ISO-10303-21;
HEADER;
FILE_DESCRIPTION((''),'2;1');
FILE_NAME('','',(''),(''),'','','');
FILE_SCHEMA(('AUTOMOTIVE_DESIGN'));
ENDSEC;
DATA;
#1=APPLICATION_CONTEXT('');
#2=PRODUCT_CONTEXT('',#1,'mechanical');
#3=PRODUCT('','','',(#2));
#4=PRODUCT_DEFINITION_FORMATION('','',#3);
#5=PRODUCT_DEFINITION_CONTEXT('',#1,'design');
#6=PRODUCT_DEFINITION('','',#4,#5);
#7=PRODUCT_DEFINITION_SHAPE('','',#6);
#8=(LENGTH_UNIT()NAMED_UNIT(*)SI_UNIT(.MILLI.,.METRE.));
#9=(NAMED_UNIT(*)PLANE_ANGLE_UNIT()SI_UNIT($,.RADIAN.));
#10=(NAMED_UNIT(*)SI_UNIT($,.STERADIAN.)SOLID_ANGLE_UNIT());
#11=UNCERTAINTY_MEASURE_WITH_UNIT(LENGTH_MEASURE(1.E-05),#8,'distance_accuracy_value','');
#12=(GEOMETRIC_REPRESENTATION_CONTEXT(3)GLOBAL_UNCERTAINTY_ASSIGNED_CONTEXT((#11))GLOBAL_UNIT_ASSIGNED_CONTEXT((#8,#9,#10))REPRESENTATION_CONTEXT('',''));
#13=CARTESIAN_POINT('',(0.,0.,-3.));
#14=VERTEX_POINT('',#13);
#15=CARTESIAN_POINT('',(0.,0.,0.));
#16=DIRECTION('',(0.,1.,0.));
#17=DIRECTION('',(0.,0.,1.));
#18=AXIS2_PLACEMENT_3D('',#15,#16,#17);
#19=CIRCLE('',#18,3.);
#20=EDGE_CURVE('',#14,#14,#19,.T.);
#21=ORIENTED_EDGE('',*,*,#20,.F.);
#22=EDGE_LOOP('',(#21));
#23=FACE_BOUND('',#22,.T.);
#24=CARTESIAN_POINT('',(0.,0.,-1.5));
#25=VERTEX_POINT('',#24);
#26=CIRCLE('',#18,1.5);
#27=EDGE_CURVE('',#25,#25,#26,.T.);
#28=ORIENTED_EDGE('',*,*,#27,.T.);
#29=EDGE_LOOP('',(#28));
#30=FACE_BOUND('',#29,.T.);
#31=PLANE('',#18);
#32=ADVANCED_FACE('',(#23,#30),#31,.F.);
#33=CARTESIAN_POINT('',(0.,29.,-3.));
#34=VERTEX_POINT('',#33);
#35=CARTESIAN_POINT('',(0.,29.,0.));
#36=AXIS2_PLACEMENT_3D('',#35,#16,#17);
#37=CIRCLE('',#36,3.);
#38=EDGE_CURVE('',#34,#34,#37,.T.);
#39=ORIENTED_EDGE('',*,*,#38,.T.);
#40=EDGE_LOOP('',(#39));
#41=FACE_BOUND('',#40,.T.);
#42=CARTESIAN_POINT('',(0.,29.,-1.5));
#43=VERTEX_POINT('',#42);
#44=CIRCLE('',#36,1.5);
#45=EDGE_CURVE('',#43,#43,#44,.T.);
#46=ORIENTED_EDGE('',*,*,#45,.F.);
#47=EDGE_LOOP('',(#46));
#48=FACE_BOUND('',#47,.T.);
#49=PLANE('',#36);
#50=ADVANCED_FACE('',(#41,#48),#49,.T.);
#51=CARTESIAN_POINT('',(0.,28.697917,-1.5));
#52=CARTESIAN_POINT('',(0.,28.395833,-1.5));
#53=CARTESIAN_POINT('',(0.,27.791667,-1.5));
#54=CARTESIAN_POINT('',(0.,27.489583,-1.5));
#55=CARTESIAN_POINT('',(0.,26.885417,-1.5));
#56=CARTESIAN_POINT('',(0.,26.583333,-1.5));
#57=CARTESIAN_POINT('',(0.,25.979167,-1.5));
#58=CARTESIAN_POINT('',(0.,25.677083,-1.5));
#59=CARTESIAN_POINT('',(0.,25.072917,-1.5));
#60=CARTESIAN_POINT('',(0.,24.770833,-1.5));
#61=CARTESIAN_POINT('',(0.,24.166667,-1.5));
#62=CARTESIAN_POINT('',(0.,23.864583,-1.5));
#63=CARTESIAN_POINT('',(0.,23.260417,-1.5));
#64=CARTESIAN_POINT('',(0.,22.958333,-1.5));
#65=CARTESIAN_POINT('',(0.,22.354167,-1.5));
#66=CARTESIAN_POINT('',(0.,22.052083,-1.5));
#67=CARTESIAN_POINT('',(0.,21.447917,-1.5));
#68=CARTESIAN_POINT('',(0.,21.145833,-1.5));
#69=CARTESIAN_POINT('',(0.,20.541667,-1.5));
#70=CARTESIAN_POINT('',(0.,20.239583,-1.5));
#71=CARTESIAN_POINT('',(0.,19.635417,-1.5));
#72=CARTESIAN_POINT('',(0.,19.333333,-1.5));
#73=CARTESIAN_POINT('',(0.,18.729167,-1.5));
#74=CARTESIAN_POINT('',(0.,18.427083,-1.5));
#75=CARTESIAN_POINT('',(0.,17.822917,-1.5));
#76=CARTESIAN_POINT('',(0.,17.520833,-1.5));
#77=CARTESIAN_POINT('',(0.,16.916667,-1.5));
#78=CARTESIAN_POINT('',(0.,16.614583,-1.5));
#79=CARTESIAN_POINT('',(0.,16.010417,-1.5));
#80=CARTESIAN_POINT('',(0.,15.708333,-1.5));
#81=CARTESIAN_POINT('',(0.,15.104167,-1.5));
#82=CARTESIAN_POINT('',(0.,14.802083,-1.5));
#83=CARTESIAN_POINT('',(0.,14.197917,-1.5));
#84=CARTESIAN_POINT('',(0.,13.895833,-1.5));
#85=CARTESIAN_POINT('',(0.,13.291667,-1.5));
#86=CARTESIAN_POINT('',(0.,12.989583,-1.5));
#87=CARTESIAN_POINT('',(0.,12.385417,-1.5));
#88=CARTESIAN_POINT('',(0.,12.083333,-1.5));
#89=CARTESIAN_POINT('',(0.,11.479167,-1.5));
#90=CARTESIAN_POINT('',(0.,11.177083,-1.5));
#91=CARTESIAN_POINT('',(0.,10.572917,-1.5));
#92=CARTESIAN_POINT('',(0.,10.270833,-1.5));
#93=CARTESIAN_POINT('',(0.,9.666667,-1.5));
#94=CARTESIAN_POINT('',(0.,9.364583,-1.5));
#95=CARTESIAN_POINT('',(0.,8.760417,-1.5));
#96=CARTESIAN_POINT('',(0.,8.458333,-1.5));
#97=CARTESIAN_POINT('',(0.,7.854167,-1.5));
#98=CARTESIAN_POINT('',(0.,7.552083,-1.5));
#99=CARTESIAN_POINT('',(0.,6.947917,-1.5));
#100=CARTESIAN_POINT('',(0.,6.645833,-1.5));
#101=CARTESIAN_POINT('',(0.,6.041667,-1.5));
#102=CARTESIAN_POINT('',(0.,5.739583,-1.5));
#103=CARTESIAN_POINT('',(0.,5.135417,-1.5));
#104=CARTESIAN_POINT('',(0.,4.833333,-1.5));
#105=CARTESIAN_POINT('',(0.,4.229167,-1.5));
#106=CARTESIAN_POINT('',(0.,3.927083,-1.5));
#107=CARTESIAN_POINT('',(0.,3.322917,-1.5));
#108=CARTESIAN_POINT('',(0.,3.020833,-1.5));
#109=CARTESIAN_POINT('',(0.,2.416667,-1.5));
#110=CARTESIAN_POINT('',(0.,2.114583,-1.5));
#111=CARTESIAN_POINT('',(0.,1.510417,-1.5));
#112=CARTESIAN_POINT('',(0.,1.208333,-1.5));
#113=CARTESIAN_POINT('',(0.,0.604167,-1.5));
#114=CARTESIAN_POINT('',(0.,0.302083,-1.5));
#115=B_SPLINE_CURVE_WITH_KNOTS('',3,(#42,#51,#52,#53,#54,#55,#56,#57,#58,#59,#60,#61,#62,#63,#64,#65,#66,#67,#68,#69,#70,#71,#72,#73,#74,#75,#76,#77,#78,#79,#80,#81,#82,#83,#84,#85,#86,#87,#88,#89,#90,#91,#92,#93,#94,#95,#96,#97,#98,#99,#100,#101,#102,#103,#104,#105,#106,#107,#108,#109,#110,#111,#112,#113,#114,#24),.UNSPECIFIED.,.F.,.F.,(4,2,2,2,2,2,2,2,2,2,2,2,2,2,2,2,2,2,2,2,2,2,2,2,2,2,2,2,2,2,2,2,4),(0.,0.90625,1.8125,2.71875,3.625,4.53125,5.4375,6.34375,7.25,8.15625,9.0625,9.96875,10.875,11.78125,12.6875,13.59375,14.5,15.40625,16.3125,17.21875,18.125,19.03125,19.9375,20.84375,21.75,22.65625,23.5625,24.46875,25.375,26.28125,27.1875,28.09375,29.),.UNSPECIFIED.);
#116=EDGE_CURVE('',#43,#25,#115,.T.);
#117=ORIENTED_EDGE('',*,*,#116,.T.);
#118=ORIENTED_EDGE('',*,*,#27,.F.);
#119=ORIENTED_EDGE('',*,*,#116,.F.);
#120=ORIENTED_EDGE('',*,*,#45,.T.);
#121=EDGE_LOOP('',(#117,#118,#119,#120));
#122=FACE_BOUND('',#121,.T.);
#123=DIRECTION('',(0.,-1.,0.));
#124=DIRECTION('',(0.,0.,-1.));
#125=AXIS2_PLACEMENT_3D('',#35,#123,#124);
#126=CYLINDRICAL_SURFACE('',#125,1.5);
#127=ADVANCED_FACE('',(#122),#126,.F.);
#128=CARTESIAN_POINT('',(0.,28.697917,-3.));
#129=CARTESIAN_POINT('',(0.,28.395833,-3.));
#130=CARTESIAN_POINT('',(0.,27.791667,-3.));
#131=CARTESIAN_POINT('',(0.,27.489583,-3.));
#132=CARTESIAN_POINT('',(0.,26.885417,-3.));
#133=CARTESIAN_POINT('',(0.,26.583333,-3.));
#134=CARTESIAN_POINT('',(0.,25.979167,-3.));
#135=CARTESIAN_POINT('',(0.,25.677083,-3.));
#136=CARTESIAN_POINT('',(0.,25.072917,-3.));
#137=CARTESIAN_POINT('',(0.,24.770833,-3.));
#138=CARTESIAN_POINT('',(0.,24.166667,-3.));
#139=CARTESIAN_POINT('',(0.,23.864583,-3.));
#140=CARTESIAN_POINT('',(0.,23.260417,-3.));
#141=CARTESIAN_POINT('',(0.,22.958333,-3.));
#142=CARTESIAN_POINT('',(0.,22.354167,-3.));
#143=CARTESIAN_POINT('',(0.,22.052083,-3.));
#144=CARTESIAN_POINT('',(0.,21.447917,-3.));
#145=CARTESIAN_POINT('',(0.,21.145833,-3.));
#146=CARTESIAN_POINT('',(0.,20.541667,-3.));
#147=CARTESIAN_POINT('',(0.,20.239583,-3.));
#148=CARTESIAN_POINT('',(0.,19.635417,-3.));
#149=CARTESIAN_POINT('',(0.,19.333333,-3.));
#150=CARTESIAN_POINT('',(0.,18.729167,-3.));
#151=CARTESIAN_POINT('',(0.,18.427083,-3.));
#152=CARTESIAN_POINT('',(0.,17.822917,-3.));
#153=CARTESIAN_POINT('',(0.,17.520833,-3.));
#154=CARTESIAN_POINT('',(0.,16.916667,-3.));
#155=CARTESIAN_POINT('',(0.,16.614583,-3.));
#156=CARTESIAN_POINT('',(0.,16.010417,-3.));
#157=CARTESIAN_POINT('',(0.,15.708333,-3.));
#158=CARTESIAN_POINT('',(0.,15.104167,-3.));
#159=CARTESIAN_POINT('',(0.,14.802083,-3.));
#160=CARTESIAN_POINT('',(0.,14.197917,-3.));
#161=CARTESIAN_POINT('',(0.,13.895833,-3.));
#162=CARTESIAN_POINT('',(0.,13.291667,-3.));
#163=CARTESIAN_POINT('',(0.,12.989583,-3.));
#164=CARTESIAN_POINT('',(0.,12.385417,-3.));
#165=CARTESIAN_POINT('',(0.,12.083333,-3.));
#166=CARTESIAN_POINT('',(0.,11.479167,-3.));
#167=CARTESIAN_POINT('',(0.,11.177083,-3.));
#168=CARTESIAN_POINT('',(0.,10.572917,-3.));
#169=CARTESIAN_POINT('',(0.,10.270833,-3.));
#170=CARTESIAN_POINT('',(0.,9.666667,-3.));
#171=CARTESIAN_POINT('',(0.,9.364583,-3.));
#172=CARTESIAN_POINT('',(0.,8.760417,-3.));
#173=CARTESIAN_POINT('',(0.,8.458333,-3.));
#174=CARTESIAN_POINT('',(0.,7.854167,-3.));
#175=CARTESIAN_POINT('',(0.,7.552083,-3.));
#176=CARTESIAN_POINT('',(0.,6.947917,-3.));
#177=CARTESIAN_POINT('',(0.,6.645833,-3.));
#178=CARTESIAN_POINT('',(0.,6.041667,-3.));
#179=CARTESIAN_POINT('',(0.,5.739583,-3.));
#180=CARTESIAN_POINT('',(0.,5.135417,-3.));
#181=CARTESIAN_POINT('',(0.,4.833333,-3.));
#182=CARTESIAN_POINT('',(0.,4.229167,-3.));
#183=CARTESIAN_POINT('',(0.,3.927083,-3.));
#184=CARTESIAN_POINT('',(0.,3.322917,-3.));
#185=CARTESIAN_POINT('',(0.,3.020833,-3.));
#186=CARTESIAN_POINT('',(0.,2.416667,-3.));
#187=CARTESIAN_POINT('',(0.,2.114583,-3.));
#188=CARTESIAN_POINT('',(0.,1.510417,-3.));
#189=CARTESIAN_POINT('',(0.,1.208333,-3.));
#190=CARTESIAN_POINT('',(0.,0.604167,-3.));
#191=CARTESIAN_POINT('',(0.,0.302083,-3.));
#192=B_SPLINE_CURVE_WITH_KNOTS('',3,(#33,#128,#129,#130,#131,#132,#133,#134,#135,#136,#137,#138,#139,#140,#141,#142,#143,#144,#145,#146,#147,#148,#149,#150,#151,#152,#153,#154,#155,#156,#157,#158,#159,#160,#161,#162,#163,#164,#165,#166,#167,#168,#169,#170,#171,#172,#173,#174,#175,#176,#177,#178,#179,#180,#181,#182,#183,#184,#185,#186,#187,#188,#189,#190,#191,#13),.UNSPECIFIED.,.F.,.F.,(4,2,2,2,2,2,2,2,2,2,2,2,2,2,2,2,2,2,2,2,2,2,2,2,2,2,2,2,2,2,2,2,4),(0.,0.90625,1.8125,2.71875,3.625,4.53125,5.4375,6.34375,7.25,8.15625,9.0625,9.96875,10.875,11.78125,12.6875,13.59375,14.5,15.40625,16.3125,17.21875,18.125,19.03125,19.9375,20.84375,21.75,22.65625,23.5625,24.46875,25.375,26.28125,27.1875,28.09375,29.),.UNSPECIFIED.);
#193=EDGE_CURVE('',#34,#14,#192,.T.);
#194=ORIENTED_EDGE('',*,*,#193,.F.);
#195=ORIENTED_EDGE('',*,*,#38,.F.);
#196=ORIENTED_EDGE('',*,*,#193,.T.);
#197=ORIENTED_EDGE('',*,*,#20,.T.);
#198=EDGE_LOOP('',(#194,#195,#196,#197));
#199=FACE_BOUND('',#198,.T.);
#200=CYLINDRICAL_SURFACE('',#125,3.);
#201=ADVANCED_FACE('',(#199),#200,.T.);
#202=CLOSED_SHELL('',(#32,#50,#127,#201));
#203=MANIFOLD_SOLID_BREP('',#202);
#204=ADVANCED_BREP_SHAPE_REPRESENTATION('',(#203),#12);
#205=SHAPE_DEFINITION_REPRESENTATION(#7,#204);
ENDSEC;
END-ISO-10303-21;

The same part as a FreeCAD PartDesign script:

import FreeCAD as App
import Part
import Sketcher
Q = App.Units.Quantity

doc = App.newDocument("Part")
body = doc.addObject("PartDesign::Body", "Body")

sketch1 = body.newObject("Sketcher::SketchObject", "Sketch")
sketch1.AttachmentSupport = (doc.getObject("XZ_Plane"), [""])
sketch1.MapMode = "FlatFace"
sketch1.addGeometry(Part.Circle(App.Vector(0, 0, 0), App.Vector(0, 0, 1), 3), False)
sketch1.addGeometry(Part.Circle(App.Vector(0, 0, 0), App.Vector(0, 0, 1), 1.5), False)
sketch1.addConstraint(Sketcher.Constraint("Coincident", 0, 3, -1, 1))
sketch1.addConstraint(Sketcher.Constraint("Coincident", 1, 3, -1, 1))
sketch1.addConstraint(Sketcher.Constraint("Diameter", 0, Q("6 mm")))
sketch1.addConstraint(Sketcher.Constraint("Diameter", 1, Q("3 mm")))
pad1 = body.newObject("PartDesign::Pad", "Pad")
pad1.Profile = sketch1
pad1.Length = 29
pad1.Reversed = True

doc.recompute()
